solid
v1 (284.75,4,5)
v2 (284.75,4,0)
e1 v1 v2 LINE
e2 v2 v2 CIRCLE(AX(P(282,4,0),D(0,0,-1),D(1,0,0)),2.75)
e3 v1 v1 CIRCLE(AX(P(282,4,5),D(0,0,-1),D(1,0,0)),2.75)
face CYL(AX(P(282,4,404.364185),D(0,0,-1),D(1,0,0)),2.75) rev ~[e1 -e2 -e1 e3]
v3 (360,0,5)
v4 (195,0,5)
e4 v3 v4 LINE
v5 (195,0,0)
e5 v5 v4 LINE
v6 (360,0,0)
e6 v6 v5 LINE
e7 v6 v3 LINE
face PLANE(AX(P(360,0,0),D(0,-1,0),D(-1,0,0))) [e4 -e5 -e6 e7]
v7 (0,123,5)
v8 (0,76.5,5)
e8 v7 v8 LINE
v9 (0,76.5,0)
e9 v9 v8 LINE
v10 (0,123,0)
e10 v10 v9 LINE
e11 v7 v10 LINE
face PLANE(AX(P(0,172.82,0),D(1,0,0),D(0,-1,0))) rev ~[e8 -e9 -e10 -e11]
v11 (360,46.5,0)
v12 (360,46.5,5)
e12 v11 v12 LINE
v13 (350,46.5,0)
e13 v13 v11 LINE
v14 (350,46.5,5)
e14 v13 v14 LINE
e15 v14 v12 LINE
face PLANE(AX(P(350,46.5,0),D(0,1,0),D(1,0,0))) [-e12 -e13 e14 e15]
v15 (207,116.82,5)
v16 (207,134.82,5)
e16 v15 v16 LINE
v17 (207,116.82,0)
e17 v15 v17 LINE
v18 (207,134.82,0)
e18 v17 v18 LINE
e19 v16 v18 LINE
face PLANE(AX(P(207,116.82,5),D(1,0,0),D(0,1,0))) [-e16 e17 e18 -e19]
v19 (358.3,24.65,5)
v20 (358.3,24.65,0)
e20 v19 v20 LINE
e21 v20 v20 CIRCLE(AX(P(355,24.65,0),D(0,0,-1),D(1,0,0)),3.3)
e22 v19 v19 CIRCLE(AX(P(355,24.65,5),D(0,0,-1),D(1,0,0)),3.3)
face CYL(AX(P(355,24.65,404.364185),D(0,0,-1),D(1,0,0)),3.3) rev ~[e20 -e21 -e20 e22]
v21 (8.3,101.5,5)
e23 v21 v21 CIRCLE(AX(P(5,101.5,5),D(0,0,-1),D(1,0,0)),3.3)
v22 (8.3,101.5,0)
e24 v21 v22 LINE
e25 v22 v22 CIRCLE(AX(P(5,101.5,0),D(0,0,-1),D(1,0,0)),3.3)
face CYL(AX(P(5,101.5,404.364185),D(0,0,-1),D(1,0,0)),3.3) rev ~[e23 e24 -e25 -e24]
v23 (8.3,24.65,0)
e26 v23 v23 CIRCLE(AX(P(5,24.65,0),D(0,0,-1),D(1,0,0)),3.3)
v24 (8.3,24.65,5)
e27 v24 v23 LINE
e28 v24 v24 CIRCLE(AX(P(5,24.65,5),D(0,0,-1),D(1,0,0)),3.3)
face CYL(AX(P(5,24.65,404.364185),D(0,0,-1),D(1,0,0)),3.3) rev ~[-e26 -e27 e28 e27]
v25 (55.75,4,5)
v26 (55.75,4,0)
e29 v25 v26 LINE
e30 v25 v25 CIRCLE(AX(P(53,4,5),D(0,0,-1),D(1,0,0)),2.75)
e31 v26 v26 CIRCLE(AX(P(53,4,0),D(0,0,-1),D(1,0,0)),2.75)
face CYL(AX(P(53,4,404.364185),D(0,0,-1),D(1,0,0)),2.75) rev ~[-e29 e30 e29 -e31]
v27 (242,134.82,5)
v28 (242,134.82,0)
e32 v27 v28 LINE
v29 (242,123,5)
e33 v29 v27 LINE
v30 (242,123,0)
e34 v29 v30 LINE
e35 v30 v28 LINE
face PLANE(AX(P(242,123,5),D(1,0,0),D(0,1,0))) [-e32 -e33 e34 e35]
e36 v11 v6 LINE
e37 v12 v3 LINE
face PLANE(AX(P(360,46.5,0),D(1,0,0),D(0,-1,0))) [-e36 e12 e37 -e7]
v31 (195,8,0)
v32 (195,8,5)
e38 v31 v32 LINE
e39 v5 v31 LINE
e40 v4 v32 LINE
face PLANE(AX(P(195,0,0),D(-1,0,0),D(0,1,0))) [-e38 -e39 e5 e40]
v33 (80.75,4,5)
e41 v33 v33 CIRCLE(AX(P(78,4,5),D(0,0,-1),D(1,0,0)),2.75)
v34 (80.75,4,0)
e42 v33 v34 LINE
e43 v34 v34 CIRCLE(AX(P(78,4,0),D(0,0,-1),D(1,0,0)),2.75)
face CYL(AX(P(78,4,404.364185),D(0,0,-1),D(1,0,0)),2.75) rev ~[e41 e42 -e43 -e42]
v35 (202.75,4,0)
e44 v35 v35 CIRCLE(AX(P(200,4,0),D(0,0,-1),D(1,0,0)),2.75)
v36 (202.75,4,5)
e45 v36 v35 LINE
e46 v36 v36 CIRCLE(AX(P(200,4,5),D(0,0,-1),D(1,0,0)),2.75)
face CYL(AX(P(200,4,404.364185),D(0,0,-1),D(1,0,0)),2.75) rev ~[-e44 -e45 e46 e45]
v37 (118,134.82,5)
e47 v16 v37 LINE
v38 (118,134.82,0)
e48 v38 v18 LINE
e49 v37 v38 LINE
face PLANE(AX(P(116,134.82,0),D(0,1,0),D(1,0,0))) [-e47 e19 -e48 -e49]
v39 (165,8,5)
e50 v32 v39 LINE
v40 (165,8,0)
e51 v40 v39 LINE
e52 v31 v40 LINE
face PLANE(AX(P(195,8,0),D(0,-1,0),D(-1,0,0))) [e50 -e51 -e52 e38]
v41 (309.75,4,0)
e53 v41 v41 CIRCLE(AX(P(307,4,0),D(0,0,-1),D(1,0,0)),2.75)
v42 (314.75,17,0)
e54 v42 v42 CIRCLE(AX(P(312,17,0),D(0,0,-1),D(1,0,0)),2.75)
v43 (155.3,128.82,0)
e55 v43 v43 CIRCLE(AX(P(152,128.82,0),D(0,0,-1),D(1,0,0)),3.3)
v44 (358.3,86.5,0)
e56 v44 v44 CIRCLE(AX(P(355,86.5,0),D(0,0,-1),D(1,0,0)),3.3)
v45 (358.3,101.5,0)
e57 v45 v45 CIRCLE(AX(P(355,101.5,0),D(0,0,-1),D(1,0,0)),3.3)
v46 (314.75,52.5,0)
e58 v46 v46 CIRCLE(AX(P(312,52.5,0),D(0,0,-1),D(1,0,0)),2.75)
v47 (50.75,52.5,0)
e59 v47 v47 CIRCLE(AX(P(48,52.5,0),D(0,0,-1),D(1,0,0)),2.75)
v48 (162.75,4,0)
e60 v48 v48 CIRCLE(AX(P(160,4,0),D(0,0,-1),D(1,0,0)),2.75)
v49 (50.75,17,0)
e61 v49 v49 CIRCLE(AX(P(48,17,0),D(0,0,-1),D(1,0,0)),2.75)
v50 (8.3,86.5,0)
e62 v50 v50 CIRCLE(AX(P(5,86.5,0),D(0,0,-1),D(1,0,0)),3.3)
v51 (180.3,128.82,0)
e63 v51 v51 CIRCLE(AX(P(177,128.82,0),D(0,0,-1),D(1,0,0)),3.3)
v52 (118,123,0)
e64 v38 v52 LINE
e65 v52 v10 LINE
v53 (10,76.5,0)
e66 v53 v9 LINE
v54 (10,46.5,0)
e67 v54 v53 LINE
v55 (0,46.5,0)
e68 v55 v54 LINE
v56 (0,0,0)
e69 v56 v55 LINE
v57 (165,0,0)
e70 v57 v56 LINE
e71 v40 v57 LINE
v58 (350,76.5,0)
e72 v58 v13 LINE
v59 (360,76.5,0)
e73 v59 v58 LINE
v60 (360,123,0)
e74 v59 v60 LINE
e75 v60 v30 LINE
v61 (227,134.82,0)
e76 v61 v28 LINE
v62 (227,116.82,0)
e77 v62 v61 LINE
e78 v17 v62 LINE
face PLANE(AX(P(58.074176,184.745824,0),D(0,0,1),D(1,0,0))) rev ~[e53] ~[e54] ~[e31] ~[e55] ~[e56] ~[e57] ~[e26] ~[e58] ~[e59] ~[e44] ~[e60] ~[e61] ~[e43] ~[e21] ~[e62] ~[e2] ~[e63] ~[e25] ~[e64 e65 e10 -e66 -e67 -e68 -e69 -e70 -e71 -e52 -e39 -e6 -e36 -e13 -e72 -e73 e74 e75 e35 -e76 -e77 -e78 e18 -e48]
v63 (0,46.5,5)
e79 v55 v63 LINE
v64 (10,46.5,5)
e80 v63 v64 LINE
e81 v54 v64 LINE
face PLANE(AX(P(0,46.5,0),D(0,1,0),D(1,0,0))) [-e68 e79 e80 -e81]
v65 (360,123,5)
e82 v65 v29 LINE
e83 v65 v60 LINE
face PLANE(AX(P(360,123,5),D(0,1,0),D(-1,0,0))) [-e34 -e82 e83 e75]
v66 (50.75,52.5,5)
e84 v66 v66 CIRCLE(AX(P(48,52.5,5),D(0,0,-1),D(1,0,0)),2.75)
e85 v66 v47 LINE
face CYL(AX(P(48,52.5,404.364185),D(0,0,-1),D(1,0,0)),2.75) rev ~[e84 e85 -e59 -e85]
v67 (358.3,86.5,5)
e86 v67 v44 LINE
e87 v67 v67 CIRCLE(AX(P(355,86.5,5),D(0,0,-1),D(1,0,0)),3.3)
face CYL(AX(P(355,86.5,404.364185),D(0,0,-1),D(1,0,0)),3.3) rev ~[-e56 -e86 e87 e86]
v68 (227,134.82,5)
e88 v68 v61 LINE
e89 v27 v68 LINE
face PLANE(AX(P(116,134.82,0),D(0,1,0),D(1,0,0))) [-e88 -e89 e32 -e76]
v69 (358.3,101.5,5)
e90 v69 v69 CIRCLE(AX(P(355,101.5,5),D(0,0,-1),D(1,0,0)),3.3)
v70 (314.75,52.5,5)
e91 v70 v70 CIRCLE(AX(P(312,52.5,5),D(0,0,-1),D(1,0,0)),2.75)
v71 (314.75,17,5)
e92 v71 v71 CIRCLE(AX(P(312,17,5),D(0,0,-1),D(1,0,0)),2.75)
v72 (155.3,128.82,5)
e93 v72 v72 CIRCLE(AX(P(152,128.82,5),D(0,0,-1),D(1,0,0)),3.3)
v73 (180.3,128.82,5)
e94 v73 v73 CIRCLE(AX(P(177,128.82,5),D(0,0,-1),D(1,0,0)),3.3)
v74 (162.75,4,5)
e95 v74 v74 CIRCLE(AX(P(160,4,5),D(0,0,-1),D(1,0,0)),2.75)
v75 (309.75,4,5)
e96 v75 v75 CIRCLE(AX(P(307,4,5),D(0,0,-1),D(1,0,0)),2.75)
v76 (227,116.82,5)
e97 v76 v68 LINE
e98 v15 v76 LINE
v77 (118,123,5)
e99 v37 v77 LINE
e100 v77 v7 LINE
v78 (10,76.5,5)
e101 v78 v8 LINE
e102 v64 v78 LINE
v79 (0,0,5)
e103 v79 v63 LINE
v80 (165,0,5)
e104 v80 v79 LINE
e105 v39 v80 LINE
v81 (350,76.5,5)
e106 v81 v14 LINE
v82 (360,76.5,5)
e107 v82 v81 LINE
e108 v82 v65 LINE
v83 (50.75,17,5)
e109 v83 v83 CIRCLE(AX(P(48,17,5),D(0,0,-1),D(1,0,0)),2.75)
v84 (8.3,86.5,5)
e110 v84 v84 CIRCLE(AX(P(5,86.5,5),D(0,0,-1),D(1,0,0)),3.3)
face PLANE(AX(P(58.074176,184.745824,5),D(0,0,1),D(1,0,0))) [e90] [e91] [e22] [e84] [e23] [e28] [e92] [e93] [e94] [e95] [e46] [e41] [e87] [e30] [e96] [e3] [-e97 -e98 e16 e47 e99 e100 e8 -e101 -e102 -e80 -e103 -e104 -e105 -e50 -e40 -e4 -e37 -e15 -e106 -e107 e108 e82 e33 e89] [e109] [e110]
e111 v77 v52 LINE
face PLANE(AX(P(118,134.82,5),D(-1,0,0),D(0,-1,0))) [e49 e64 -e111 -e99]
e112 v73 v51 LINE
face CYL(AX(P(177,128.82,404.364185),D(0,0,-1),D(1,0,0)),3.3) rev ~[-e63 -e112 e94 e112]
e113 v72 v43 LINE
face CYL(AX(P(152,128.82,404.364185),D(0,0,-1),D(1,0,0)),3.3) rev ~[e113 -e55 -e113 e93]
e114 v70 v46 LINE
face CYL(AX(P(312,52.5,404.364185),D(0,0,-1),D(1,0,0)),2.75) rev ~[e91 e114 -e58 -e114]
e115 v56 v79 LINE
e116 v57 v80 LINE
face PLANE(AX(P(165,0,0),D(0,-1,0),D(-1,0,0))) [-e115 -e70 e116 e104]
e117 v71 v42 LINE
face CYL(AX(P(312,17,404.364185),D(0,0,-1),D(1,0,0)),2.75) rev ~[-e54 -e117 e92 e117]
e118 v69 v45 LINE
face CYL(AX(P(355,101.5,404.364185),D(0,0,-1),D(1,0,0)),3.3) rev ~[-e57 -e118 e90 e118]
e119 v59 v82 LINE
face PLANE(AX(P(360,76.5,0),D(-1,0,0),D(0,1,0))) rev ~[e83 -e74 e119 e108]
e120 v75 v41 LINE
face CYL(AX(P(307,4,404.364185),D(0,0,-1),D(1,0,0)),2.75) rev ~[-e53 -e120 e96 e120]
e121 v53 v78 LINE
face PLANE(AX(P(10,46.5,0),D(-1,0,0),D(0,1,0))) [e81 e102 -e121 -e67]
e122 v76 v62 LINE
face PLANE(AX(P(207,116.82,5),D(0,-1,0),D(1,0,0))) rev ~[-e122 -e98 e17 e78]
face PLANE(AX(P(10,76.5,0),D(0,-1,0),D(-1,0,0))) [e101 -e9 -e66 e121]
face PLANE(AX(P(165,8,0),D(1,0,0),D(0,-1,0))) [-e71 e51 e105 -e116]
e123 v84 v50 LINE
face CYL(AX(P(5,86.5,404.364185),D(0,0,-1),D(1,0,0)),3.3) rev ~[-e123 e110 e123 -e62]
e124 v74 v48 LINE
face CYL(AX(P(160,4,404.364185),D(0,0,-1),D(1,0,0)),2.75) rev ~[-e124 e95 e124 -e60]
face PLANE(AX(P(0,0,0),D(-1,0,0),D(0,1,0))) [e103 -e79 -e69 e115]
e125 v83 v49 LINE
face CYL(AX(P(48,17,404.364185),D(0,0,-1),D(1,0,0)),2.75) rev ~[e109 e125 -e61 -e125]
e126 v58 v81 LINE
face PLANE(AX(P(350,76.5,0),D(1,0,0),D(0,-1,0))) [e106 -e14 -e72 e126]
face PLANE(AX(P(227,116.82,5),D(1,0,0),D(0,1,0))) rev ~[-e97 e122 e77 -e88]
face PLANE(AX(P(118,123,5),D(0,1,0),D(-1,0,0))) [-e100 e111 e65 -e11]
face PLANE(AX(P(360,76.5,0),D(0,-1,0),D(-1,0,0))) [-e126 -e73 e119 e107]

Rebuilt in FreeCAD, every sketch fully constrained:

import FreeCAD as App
import Part
import Sketcher

V = App.Vector


def add_polygon(sketch, points):
    """Adds a closed chain of lines whose ends are joined by coincident constraints."""
    first, n = sketch.GeometryCount, len(points)
    for a, b in zip(points, points[1:] + points[:1]):
        sketch.addGeometry(Part.LineSegment(App.Vector(*a, 0), App.Vector(*b, 0)), False)
    for i in range(n):
        sketch.addConstraint(Sketcher.Constraint("Coincident", first + i, 2, first + (i + 1) % n, 1))

doc = App.newDocument("Part")
body = doc.addObject("PartDesign::Body", "Body")

# Sketch on XY plane
sketch1 = body.newObject("Sketcher::SketchObject", "Sketch")
sketch1.AttachmentSupport = (doc.getObject("XY_Plane"), [""])
sketch1.MapMode = "FlatFace"
add_polygon(sketch1, [(0, 173), (0, 76), (10, 76), (10, 46), (0, 46), (0, 0), (165, 0), (165, 8), (195, 8), (195, 0), (360, 0), (360, 46), (350, 46), (350, 76), (360, 76), (360, 173), (244, 173), (244, 135), (116, 135), (116, 173)])  # lines 0-19
sketch1.addConstraint([
    Sketcher.Constraint("Vertical", 0),
    Sketcher.Constraint("Horizontal", 1),
    Sketcher.Constraint("Vertical", 2),
    Sketcher.Constraint("Horizontal", 3),
    Sketcher.Constraint("Vertical", 4),
    Sketcher.Constraint("Horizontal", 5),
    Sketcher.Constraint("Vertical", 6),
    Sketcher.Constraint("Horizontal", 7),
    Sketcher.Constraint("Vertical", 8),
    Sketcher.Constraint("Horizontal", 9),
    Sketcher.Constraint("Vertical", 10),
    Sketcher.Constraint("Horizontal", 11),
    Sketcher.Constraint("Vertical", 12),
    Sketcher.Constraint("Horizontal", 13),
    Sketcher.Constraint("Vertical", 14),
    Sketcher.Constraint("Horizontal", 15),
    Sketcher.Constraint("Vertical", 16),
    Sketcher.Constraint("Horizontal", 17),
    Sketcher.Constraint("Vertical", 18),
    Sketcher.Constraint("Horizontal", 19),
    Sketcher.Constraint("Coincident", 4, 2, -1, 1),
    Sketcher.Constraint("PointOnObject", 0, 2, -2),
    Sketcher.Constraint("PointOnObject", 8, 2, -1),
    Sketcher.Constraint("Horizontal", 3, 2, 10, 2),
    Sketcher.Constraint("Horizontal", 1, 2, 12, 2),
    Sketcher.Constraint("Horizontal", 15, 2, 18, 2),
    Sketcher.Constraint("Vertical", 10, 2, 13, 2),
    Sketcher.Constraint("Equal", 5, 9),
    Sketcher.Constraint("Equal", 3, 11),
    Sketcher.Constraint("Equal", 15, 19),
    Sketcher.Constraint("Equal", 7, 2),
    Sketcher.Constraint("DistanceX", 1, 1, 1, 2, 10.0),
    Sketcher.Constraint("DistanceX", 5, 1, 5, 2, 165.0),
    Sketcher.Constraint("DistanceX", 7, 1, 7, 2, 30.0),
    Sketcher.Constraint("DistanceX", 15, 2, 15, 1, 116.0),
    Sketcher.Constraint("DistanceY", 6, 1, 6, 2, 8.0),
    Sketcher.Constraint("DistanceY", 16, 2, 16, 1, 38.0),
    Sketcher.Constraint("DistanceY", 4, 2, 4, 1, 46.5),
    Sketcher.Constraint("DistanceY", 0, 2, 0, 1, 96.32),
])
pad1 = body.newObject("PartDesign::Pad", "Pad")
pad1.Profile = sketch1
pad1.Length = 5

# Sketch on XY plane
sketch2 = body.newObject("Sketcher::SketchObject", "Sketch001")
sketch2.AttachmentSupport = (doc.getObject("XY_Plane"), [""])
sketch2.MapMode = "FlatFace"
sketch2.AttachmentOffset = App.Placement(V(0, 0, 5), App.Rotation())
sketch2.addGeometry([
    Part.Circle(V(5, 86.5, 0), V(0, 0, 1), 3.3),  # 0
    Part.Circle(V(5, 24.6, 0), V(0, 0, 1), 3.3),  # 1
    Part.Circle(V(355, 86.5, 0), V(0, 0, 1), 3.3),  # 2
    Part.Circle(V(355, 24.6, 0), V(0, 0, 1), 3.3),  # 3
    Part.Circle(V(300, 128.8, 0), V(0, 0, 1), 3.3),  # 4
    Part.Circle(V(270, 128.8, 0), V(0, 0, 1), 3.3),  # 5
    Part.Circle(V(90, 128.8, 0), V(0, 0, 1), 3.3),  # 6
    Part.Circle(V(60, 128.8, 0), V(0, 0, 1), 3.3),  # 7
    Part.Circle(V(177, 128.8, 0), V(0, 0, 1), 3.3),  # 8
    Part.Circle(V(5, 101.5, 0), V(0, 0, 1), 3.3),  # 9
    Part.Circle(V(355, 101.5, 0), V(0, 0, 1), 3.3),  # 10
    Part.Circle(V(152, 128.8, 0), V(0, 0, 1), 3.3),  # 11
], False)
sketch2.addConstraint([
    Sketcher.Constraint("Equal", 0, 1),
    Sketcher.Constraint("Equal", 1, 2),
    Sketcher.Constraint("Equal", 2, 3),
    Sketcher.Constraint("Equal", 3, 4),
    Sketcher.Constraint("Equal", 4, 5),
    Sketcher.Constraint("Equal", 5, 6),
    Sketcher.Constraint("Equal", 6, 7),
    Sketcher.Constraint("Equal", 7, 8),
    Sketcher.Constraint("Equal", 8, 9),
    Sketcher.Constraint("Equal", 9, 10),
    Sketcher.Constraint("Equal", 10, 11),
    Sketcher.Constraint("Horizontal", 0, 3, 2, 3),
    Sketcher.Constraint("Horizontal", 1, 3, 3, 3),
    Sketcher.Constraint("Horizontal", 4, 3, 5, 3),
    Sketcher.Constraint("Horizontal", 5, 3, 6, 3),
    Sketcher.Constraint("Horizontal", 6, 3, 7, 3),
    Sketcher.Constraint("Horizontal", 7, 3, 8, 3),
    Sketcher.Constraint("Horizontal", 9, 3, 10, 3),
    Sketcher.Constraint("Horizontal", 8, 3, 11, 3),
    Sketcher.Constraint("Vertical", 0, 3, 1, 3),
    Sketcher.Constraint("Vertical", 2, 3, 3, 3),
    Sketcher.Constraint("Vertical", 1, 3, 9, 3),
    Sketcher.Constraint("Vertical", 3, 3, 10, 3),
    Sketcher.Constraint("Diameter", 0, 6.6),
    Sketcher.Constraint("DistanceX", -1, 1, 0, 3, 5.0),
    Sketcher.Constraint("DistanceX", -1, 1, 2, 3, 355.0),
    Sketcher.Constraint("DistanceX", -1, 1, 4, 3, 300.0),
    Sketcher.Constraint("DistanceX", -1, 1, 5, 3, 270.0),
    Sketcher.Constraint("DistanceX", -1, 1, 6, 3, 90.0),
    Sketcher.Constraint("DistanceX", -1, 1, 7, 3, 60.0),
    Sketcher.Constraint("DistanceX", -1, 1, 8, 3, 177.0),
    Sketcher.Constraint("DistanceX", -1, 1, 11, 3, 152.0),
    Sketcher.Constraint("DistanceY", 0, 3, 9, 3, 15.0),
    Sketcher.Constraint("DistanceY", -1, 1, 0, 3, 86.5),
    Sketcher.Constraint("DistanceY", -1, 1, 1, 3, 24.65),
    Sketcher.Constraint("DistanceY", -1, 1, 4, 3, 128.82),
])
doc.recompute()
hole = body.newObject("PartDesign::Hole", "Hole")
hole.Profile = sketch2
hole.ThreadType = "None"
hole.Diameter = 6.6
hole.DepthType = "ThroughAll"

# Sketch on XY plane
sketch3 = body.newObject("Sketcher::SketchObject", "Sketch002")
sketch3.AttachmentSupport = (doc.getObject("XY_Plane"), [""])
sketch3.MapMode = "FlatFace"
sketch3.AttachmentOffset = App.Placement(V(0, 0, 5), App.Rotation())
sketch3.addGeometry([
    Part.Circle(V(312, 52.5, 0), V(0, 0, 1), 2.8),  # 0
    Part.Circle(V(312, 17, 0), V(0, 0, 1), 2.8),  # 1
    Part.Circle(V(48, 52.5, 0), V(0, 0, 1), 2.8),  # 2
    Part.Circle(V(48, 17, 0), V(0, 0, 1), 2.8),  # 3
    Part.Circle(V(307, 4, 0), V(0, 0, 1), 2.8),  # 4
    Part.Circle(V(282, 4, 0), V(0, 0, 1), 2.8),  # 5
    Part.Circle(V(200, 4, 0), V(0, 0, 1), 2.8),  # 6
    Part.Circle(V(160, 4, 0), V(0, 0, 1), 2.8),  # 7
    Part.Circle(V(78, 4, 0), V(0, 0, 1), 2.8),  # 8
    Part.Circle(V(53, 4, 0), V(0, 0, 1), 2.8),  # 9
], False)
sketch3.addConstraint([
    Sketcher.Constraint("Equal", 0, 1),
    Sketcher.Constraint("Equal", 1, 2),
    Sketcher.Constraint("Equal", 2, 3),
    Sketcher.Constraint("Equal", 3, 4),
    Sketcher.Constraint("Equal", 4, 5),
    Sketcher.Constraint("Equal", 5, 6),
    Sketcher.Constraint("Equal", 6, 7),
    Sketcher.Constraint("Equal", 7, 8),
    Sketcher.Constraint("Equal", 8, 9),
    Sketcher.Constraint("Horizontal", 0, 3, 2, 3),
    Sketcher.Constraint("Horizontal", 1, 3, 3, 3),
    Sketcher.Constraint("Horizontal", 4, 3, 5, 3),
    Sketcher.Constraint("Horizontal", 5, 3, 6, 3),
    Sketcher.Constraint("Horizontal", 6, 3, 7, 3),
    Sketcher.Constraint("Horizontal", 7, 3, 8, 3),
    Sketcher.Constraint("Horizontal", 8, 3, 9, 3),
    Sketcher.Constraint("Vertical", 0, 3, 1, 3),
    Sketcher.Constraint("Vertical", 2, 3, 3, 3),
    Sketcher.Constraint("Diameter", 0, 5.5),
    Sketcher.Constraint("DistanceX", -1, 1, 0, 3, 312.0),
    Sketcher.Constraint("DistanceY", -1, 1, 1, 3, 17.0),
    Sketcher.Constraint("DistanceX", -1, 1, 2, 3, 48.0),
    Sketcher.Constraint("DistanceX", -1, 1, 4, 3, 307.0),
    Sketcher.Constraint("DistanceY", -1, 1, 4, 3, 4.0),
    Sketcher.Constraint("DistanceX", -1, 1, 5, 3, 282.0),
    Sketcher.Constraint("DistanceX", -1, 1, 6, 3, 200.0),
    Sketcher.Constraint("DistanceX", -1, 1, 7, 3, 160.0),
    Sketcher.Constraint("DistanceX", -1, 1, 8, 3, 78.0),
    Sketcher.Constraint("DistanceX", -1, 1, 9, 3, 53.0),
    Sketcher.Constraint("DistanceY", -1, 1, 0, 3, 52.5),
])
doc.recompute()
hole2 = body.newObject("PartDesign::Hole", "Hole001")
hole2.Profile = sketch3
hole2.ThreadType = "None"
hole2.Diameter = 5.5
hole2.DepthType = "ThroughAll"

# Sketch on XY plane
sketch4 = body.newObject("Sketcher::SketchObject", "Sketch003")
sketch4.AttachmentSupport = (doc.getObject("XY_Plane"), [""])
sketch4.MapMode = "FlatFace"
sketch4.AttachmentOffset = App.Placement(V(0, 0, 5), App.Rotation())
add_polygon(sketch4, [(100, 173), (100, 213), (0, 173)])  # lines 0-2
add_polygon(sketch4, [(260, 213), (260, 173), (360, 173)])  # lines 3-5
sketch4.addConstraint([
    Sketcher.Constraint("Vertical", 0),
    Sketcher.Constraint("Horizontal", 2),
    Sketcher.Constraint("Vertical", 3),
    Sketcher.Constraint("Horizontal", 4),
    Sketcher.Constraint("PointOnObject", 1, 2, -2),
    Sketcher.Constraint("Horizontal", 2, 2, 3, 2),
    Sketcher.Constraint("Horizontal", 0, 2, 5, 2),
    Sketcher.Constraint("Equal", 2, 4),
    Sketcher.Constraint("DistanceX", 2, 1, 2, 2, 100.0),
    Sketcher.Constraint("DistanceY", 0, 1, 0, 2, 40.0),
    Sketcher.Constraint("DistanceX", -1, 1, 3, 2, 260.0),
    Sketcher.Constraint("DistanceY", -1, 1, 0, 2, 212.82),
])
pad2 = body.newObject("PartDesign::Pad", "Pad001")
pad2.Profile = sketch4
pad2.Length = 5
pad2.Reversed = True

# Sketch on XY plane
sketch5 = body.newObject("Sketcher::SketchObject", "Sketch004")
sketch5.AttachmentSupport = (doc.getObject("XY_Plane"), [""])
sketch5.MapMode = "FlatFace"
sketch5.AttachmentOffset = App.Placement(V(0, 0, 5), App.Rotation())
add_polygon(sketch5, [(118, 123), (118, 135), (242, 135), (242, 123), (360, 123), (360, 223), (0, 223), (0, 123)])  # lines 0-7
sketch5.addConstraint([
    Sketcher.Constraint("Vertical", 0),
    Sketcher.Constraint("Horizontal", 1),
    Sketcher.Constraint("Vertical", 2),
    Sketcher.Constraint("Horizontal", 3),
    Sketcher.Constraint("Vertical", 4),
    Sketcher.Constraint("Horizontal", 5),
    Sketcher.Constraint("Vertical", 6),
    Sketcher.Constraint("Horizontal", 7),
    Sketcher.Constraint("PointOnObject", 5, 2, -2),
    Sketcher.Constraint("Horizontal", 3, 2, 6, 2),
    Sketcher.Constraint("Equal", 3, 7),
    Sketcher.Constraint("DistanceX", 1, 1, 1, 2, 124.0),
    Sketcher.Constraint("DistanceX", 3, 1, 3, 2, 118.0),
    Sketcher.Constraint("DistanceY", 4, 1, 4, 2, 100.0),
    Sketcher.Constraint("DistanceY", -1, 1, 2, 2, 123.0),
    Sketcher.Constraint("DistanceY", 0, 1, 0, 2, 11.82),
])
pocket1 = body.newObject("PartDesign::Pocket", "Pocket")
pocket1.Profile = sketch5
pocket1.Type = "ThroughAll"

# Sketch on XY plane
sketch6 = body.newObject("Sketcher::SketchObject", "Sketch005")
sketch6.AttachmentSupport = (doc.getObject("XY_Plane"), [""])
sketch6.MapMode = "FlatFace"
sketch6.AttachmentOffset = App.Placement(V(0, 0, 5), App.Rotation())
add_polygon(sketch6, [(207, 135), (207, 117), (227, 117), (227, 135)])  # lines 0-3
sketch6.addConstraint([
    Sketcher.Constraint("Vertical", 0),
    Sketcher.Constraint("Horizontal", 1),
    Sketcher.Constraint("Vertical", 2),
    Sketcher.Constraint("Horizontal", 3),
    Sketcher.Constraint("DistanceX", 1, 1, 1, 2, 20.0),
    Sketcher.Constraint("DistanceY", 0, 2, 0, 1, 18.0),
    Sketcher.Constraint("DistanceX", -1, 1, 0, 2, 207.0),
    Sketcher.Constraint("DistanceY", -1, 1, 0, 2, 116.82),
])
pocket2 = body.newObject("PartDesign::Pocket", "Pocket001")
pocket2.Profile = sketch6
pocket2.Type = "ThroughAll"

doc.recompute()
